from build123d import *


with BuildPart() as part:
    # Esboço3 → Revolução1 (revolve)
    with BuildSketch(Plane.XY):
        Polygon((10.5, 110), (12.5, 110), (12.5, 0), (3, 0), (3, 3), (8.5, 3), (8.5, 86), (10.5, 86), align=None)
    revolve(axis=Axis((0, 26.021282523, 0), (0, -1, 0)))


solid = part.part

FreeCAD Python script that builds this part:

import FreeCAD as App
import Part
import Sketcher

doc = App.newDocument("Part")
body = doc.addObject("PartDesign::Body", "Body")

# Sketch on XY plane
sketch1 = body.newObject("Sketcher::SketchObject", "Sketch")
sketch1.AttachmentSupport = (doc.getObject("XY_Plane"), [""])
sketch1.MapMode = "FlatFace"
sketch1.addGeometry([
    Part.LineSegment(App.Vector(12.5, 110, 0), App.Vector(10.5, 110, 0)),  # 0
    Part.LineSegment(App.Vector(10.5, 110, 0), App.Vector(10.5, 86, 0)),  # 1
    Part.LineSegment(App.Vector(10.5, 86, 0), App.Vector(8.5, 86, 0)),  # 2
    Part.LineSegment(App.Vector(8.5, 86, 0), App.Vector(8.5, 3, 0)),  # 3
    Part.LineSegment(App.Vector(8.5, 3, 0), App.Vector(3, 3, 0)),  # 4
    Part.LineSegment(App.Vector(3, 3, 0), App.Vector(3, 0, 0)),  # 5
    Part.LineSegment(App.Vector(3, 0, 0), App.Vector(12.5, 0, 0)),  # 6
    Part.LineSegment(App.Vector(12.5, 0, 0), App.Vector(12.5, 110, 0)),  # 7
], False)
sketch1.addConstraint([
    Sketcher.Constraint("Coincident", 0, 2, 1, 1),
    Sketcher.Constraint("Coincident", 1, 2, 2, 1),
    Sketcher.Constraint("Coincident", 2, 2, 3, 1),
    Sketcher.Constraint("Coincident", 3, 2, 4, 1),
    Sketcher.Constraint("Coincident", 4, 2, 5, 1),
    Sketcher.Constraint("Coincident", 5, 2, 6, 1),
    Sketcher.Constraint("Coincident", 6, 2, 7, 1),
    Sketcher.Constraint("Coincident", 7, 2, 0, 1),
    Sketcher.Constraint("Horizontal", 0),
    Sketcher.Constraint("Vertical", 1),
    Sketcher.Constraint("Horizontal", 2),
    Sketcher.Constraint("Vertical", 3),
    Sketcher.Constraint("Horizontal", 4),
    Sketcher.Constraint("Vertical", 5),
    Sketcher.Constraint("Horizontal", 6),
    Sketcher.Constraint("Vertical", 7),
    Sketcher.Constraint("PointOnObject", 5, 2, -1),
    Sketcher.Constraint("Equal", 0, 2),
    Sketcher.Constraint("DistanceX", 0, 2, 0, 1, 2.0),
    Sketcher.Constraint("DistanceY", 1, 2, 1, 1, 24.0),
    Sketcher.Constraint("DistanceY", 3, 2, 3, 1, 83.0),
    Sketcher.Constraint("DistanceY", 5, 2, 5, 1, 3.0),
    Sketcher.Constraint("DistanceX", 4, 2, 4, 1, 5.5),
    Sketcher.Constraint("DistanceX", -1, 1, 4, 2, 3.0),
])
revolution = body.newObject("PartDesign::Revolution", "Revolution")
revolution.Profile = sketch1
revolution.ReferenceAxis = (sketch1, ["V_Axis"])
revolution.Angle = 360

doc.recompute()
